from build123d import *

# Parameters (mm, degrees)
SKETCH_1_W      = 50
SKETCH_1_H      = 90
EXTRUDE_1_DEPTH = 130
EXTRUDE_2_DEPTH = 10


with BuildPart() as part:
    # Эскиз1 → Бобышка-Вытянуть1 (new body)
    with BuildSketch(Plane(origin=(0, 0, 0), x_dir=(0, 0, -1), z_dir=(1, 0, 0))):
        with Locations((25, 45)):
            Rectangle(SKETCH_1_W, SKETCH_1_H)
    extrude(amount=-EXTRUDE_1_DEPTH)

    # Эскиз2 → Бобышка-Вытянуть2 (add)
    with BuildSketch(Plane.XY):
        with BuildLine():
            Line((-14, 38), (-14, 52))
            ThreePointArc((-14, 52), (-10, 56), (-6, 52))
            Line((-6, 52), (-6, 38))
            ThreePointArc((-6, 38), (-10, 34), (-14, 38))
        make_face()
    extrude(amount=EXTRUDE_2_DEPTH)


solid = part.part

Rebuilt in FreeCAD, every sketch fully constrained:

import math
import FreeCAD as App
import Part
import Sketcher
from FreeCAD import Vector
Q = App.Units.Quantity

doc = App.newDocument("Part")
body = doc.addObject("PartDesign::Body", "Body")

# Sketch on YZ plane
sketch1 = body.newObject("Sketcher::SketchObject", "Sketch")
sketch1.AttachmentSupport = (doc.getObject("YZ_Plane"), [""])
sketch1.MapMode = "FlatFace"
sketch1.addGeometry(Part.LineSegment(Vector(90, 0, 0), Vector(0, 0, 0)), False)
sketch1.addGeometry(Part.LineSegment(Vector(0, 0, 0), Vector(0, -50, 0)), False)
sketch1.addGeometry(Part.LineSegment(Vector(0, -50, 0), Vector(90, -50, 0)), False)
sketch1.addGeometry(Part.LineSegment(Vector(90, -50, 0), Vector(90, 0, 0)), False)
sketch1.addConstraint(Sketcher.Constraint("Coincident", 0, 2, 1, 1))
sketch1.addConstraint(Sketcher.Constraint("Coincident", 1, 2, 2, 1))
sketch1.addConstraint(Sketcher.Constraint("Coincident", 2, 2, 3, 1))
sketch1.addConstraint(Sketcher.Constraint("Coincident", 3, 2, 0, 1))
sketch1.addConstraint(Sketcher.Constraint("Horizontal", 0))
sketch1.addConstraint(Sketcher.Constraint("Vertical", 1))
sketch1.addConstraint(Sketcher.Constraint("Horizontal", 2))
sketch1.addConstraint(Sketcher.Constraint("Vertical", 3))
sketch1.addConstraint(Sketcher.Constraint("Coincident", 0, 2, -1, 1))
sketch1.addConstraint(Sketcher.Constraint("DistanceX", 0, 2, 0, 1, Q("90 mm")))
sketch1.addConstraint(Sketcher.Constraint("DistanceY", 1, 2, 1, 1, Q("50 mm")))
pad1 = body.newObject("PartDesign::Pad", "Pad")
pad1.Profile = sketch1
pad1.Length = 130
pad1.Reversed = True

# Sketch on XY plane
sketch2 = body.newObject("Sketcher::SketchObject", "Sketch001")
sketch2.AttachmentSupport = (doc.getObject("XY_Plane"), [""])
sketch2.MapMode = "FlatFace"
sketch2.addGeometry(Part.LineSegment(Vector(-14, 52, 0), Vector(-14, 38, 0)), False)
sketch2.addGeometry(Part.ArcOfCircle(Part.Circle(Vector(-10, 38, 0), Vector(0, 0, 1), 4), math.radians(180), math.radians(360)), False)
sketch2.addGeometry(Part.LineSegment(Vector(-6, 38, 0), Vector(-6, 52, 0)), False)
sketch2.addGeometry(Part.ArcOfCircle(Part.Circle(Vector(-10, 52, 0), Vector(0, 0, 1), 4), math.radians(0), math.radians(180)), False)
sketch2.addConstraint(Sketcher.Constraint("Tangent", 0, 2, 1, 1))
sketch2.addConstraint(Sketcher.Constraint("Tangent", 1, 2, 2, 1))
sketch2.addConstraint(Sketcher.Constraint("Tangent", 2, 2, 3, 1))
sketch2.addConstraint(Sketcher.Constraint("Tangent", 3, 2, 0, 1))
sketch2.addConstraint(Sketcher.Constraint("Vertical", 0))
sketch2.addConstraint(Sketcher.Constraint("Vertical", 2))
sketch2.addConstraint(Sketcher.Constraint("Radius", 1, Q("4 mm")))
sketch2.addConstraint(Sketcher.Constraint("DistanceY", 0, 2, 0, 1, Q("14 mm")))
sketch2.addConstraint(Sketcher.Constraint("DistanceX", 1, 3, -1, 1, Q("10 mm")))
sketch2.addConstraint(Sketcher.Constraint("DistanceY", -1, 1, 1, 3, Q("38 mm")))
pad2 = body.newObject("PartDesign::Pad", "Pad001")
pad2.Profile = sketch2
pad2.Length = 10

doc.recompute()
